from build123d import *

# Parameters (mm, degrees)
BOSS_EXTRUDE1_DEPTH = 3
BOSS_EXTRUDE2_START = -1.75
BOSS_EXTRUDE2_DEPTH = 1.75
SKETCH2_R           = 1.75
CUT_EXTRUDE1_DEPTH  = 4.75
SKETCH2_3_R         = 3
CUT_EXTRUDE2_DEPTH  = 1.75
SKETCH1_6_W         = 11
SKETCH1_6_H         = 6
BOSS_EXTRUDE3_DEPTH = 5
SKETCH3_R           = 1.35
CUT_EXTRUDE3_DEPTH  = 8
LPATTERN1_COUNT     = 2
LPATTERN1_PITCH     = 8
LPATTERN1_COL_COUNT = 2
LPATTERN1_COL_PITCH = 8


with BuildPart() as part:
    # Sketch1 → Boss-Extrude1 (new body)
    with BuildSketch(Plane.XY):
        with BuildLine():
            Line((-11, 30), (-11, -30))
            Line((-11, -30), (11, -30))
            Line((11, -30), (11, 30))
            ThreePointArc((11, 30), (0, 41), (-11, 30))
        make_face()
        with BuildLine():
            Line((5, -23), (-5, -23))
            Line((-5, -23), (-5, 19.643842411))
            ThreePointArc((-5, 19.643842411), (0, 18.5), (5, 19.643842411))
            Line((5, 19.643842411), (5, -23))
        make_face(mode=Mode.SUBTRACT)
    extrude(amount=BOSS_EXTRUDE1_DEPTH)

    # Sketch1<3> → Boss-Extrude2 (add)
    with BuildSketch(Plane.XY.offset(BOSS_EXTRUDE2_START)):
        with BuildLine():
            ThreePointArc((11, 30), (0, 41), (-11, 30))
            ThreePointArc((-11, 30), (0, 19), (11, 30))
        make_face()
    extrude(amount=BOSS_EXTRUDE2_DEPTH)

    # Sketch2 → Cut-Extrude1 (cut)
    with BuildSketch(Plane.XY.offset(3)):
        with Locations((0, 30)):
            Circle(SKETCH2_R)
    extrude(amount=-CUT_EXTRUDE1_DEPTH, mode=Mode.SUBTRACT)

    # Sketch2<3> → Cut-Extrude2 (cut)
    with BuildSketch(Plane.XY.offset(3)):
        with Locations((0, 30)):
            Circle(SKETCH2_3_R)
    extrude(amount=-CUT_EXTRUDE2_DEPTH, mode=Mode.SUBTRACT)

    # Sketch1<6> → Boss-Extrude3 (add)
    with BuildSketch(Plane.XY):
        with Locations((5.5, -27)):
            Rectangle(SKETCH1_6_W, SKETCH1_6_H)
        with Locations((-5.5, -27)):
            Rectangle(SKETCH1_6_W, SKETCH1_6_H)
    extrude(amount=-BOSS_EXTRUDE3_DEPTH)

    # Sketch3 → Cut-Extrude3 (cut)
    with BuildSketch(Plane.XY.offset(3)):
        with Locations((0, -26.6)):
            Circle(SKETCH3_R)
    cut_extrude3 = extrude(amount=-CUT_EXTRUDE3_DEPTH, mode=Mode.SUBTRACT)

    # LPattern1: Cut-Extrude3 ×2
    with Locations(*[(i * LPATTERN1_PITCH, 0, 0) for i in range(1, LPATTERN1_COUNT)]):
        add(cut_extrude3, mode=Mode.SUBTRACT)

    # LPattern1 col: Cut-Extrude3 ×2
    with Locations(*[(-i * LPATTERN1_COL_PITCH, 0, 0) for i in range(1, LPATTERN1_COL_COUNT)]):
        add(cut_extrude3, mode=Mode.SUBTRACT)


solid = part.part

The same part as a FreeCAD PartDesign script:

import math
import FreeCAD as App
import Part
import Sketcher
from FreeCAD import Vector

doc = App.newDocument("Part")
body = doc.addObject("PartDesign::Body", "Body")

sketch1 = doc.addObject("Sketcher::SketchObject", "Sketch")
body.addObject(sketch1)
sketch1.AttachmentSupport = (doc.XY_Plane, [""])
sketch1.MapMode = "FlatFace"
sketch1.addGeometry([
    Part.LineSegment(Vector(-11, 30, 0), Vector(-11, -30, 0)),
    Part.LineSegment(Vector(-11, -30, 0), Vector(11, -30, 0)),
    Part.LineSegment(Vector(11, -30, 0), Vector(11, 30, 0)),
    Part.ArcOfCircle(Part.Circle(Vector(0, 30, 0), Vector(0, 0, 1), 11), math.radians(0), math.radians(180)),
    Part.LineSegment(Vector(5, 20, 0), Vector(5, -23, 0)),
    Part.LineSegment(Vector(5, -23, 0), Vector(-5, -23, 0)),
    Part.LineSegment(Vector(-5, -23, 0), Vector(-5, 20, 0)),
    Part.ArcOfCircle(Part.Circle(Vector(0, 30, 0), Vector(0, 0, 1), 12), math.radians(-116), math.radians(-64)),
], False)
sketch1.addConstraint([
    Sketcher.Constraint("Coincident", 0, 2, 1, 1),
    Sketcher.Constraint("Coincident", 1, 2, 2, 1),
    Sketcher.Constraint("Tangent", 2, 2, 3, 1),
    Sketcher.Constraint("Tangent", 3, 2, 0, 1),
    Sketcher.Constraint("Coincident", 4, 2, 5, 1),
    Sketcher.Constraint("Coincident", 5, 2, 6, 1),
    Sketcher.Constraint("Coincident", 6, 2, 7, 1),
    Sketcher.Constraint("Coincident", 7, 2, 4, 1),
    Sketcher.Constraint("Vertical", 0),
    Sketcher.Constraint("Horizontal", 1),
    Sketcher.Constraint("Vertical", 2),
    Sketcher.Constraint("Vertical", 4),
    Sketcher.Constraint("Horizontal", 5),
    Sketcher.Constraint("Vertical", 6),
    Sketcher.Constraint("Coincident", 7, 3, 3, 3),
    Sketcher.Constraint("Symmetric", 0, 2, 2, 2, -1, 1),
    Sketcher.Constraint("Horizontal", 6, 2, 7, 2),
    Sketcher.Constraint("Radius", 3, 11.0),
    Sketcher.Constraint("Radius", 7, 11.5),
    Sketcher.Constraint("DistanceX", 5, 2, 5, 1, 10.0),
    Sketcher.Constraint("DistanceY", 0, 2, 0, 1, 60.0),
    Sketcher.Constraint("DistanceY", 4, 2, -1, 1, 23.0),
])
pad1 = doc.addObject("PartDesign::Pad", "Pad")
body.addObject(pad1)
pad1.Profile = sketch1
pad1.Length = 3

sketch2 = doc.addObject("Sketcher::SketchObject", "Sketch001")
body.addObject(sketch2)
sketch2.AttachmentSupport = (doc.XY_Plane, [""])
sketch2.MapMode = "FlatFace"
sketch2.AttachmentOffset = App.Placement(Vector(0, 0, -1.75), App.Rotation())
sketch2.addGeometry(Part.Circle(Vector(0, 30, 0), Vector(0, 0, 1), 11), False)
sketch2.addConstraint([
    Sketcher.Constraint("PointOnObject", 0, 3, -2),
    Sketcher.Constraint("Diameter", 0, 22.0),
    Sketcher.Constraint("DistanceY", -1, 1, 0, 3, 30.0),
])
pad2 = doc.addObject("PartDesign::Pad", "Pad001")
body.addObject(pad2)
pad2.Profile = sketch2
pad2.Length = 1.75

sketch3 = doc.addObject("Sketcher::SketchObject", "Sketch002")
body.addObject(sketch3)
sketch3.AttachmentSupport = (doc.XY_Plane, [""])
sketch3.MapMode = "FlatFace"
sketch3.AttachmentOffset = App.Placement(Vector(0, 0, 3), App.Rotation())
sketch3.addGeometry(Part.Circle(Vector(0, 30, 0), Vector(0, 0, 1), 1.8), False)
sketch3.addConstraint([
    Sketcher.Constraint("PointOnObject", 0, 3, -2),
    Sketcher.Constraint("Diameter", 0, 3.5),
    Sketcher.Constraint("DistanceY", -1, 1, 0, 3, 30.0),
])
pocket1 = doc.addObject("PartDesign::Pocket", "Pocket")
body.addObject(pocket1)
pocket1.Profile = sketch3
pocket1.Length = 4.75

sketch4 = doc.addObject("Sketcher::SketchObject", "Sketch003")
body.addObject(sketch4)
sketch4.AttachmentSupport = (doc.XY_Plane, [""])
sketch4.MapMode = "FlatFace"
sketch4.AttachmentOffset = App.Placement(Vector(0, 0, 3), App.Rotation())
sketch4.addGeometry(Part.Circle(Vector(0, 30, 0), Vector(0, 0, 1), 3), False)
sketch4.addConstraint([
    Sketcher.Constraint("PointOnObject", 0, 3, -2),
    Sketcher.Constraint("Diameter", 0, 6.0),
    Sketcher.Constraint("DistanceY", -1, 1, 0, 3, 30.0),
])
pocket2 = doc.addObject("PartDesign::Pocket", "Pocket001")
body.addObject(pocket2)
pocket2.Profile = sketch4
pocket2.Length = 1.75

sketch5 = doc.addObject("Sketcher::SketchObject", "Sketch004")
body.addObject(sketch5)
sketch5.AttachmentSupport = (doc.XY_Plane, [""])
sketch5.MapMode = "FlatFace"
sketch5.addGeometry([
    Part.LineSegment(Vector(11, -30, 0), Vector(11, -24, 0)),
    Part.LineSegment(Vector(11, -24, 0), Vector(-11, -24, 0)),
    Part.LineSegment(Vector(-11, -24, 0), Vector(-11, -30, 0)),
    Part.LineSegment(Vector(-11, -30, 0), Vector(11, -30, 0)),
], False)
sketch5.addConstraint([
    Sketcher.Constraint("Coincident", 0, 2, 1, 1),
    Sketcher.Constraint("Coincident", 1, 2, 2, 1),
    Sketcher.Constraint("Coincident", 2, 2, 3, 1),
    Sketcher.Constraint("Coincident", 3, 2, 0, 1),
    Sketcher.Constraint("Vertical", 0),
    Sketcher.Constraint("Horizontal", 1),
    Sketcher.Constraint("Vertical", 2),
    Sketcher.Constraint("Horizontal", 3),
    Sketcher.Constraint("DistanceX", 1, 2, 1, 1, 22.0),
    Sketcher.Constraint("DistanceY", 0, 1, 0, 2, 6.0),
    Sketcher.Constraint("DistanceX", -1, 1, 0, 2, 11.0),
    Sketcher.Constraint("DistanceY", 0, 2, -1, 1, 24.0),
])
pad3 = doc.addObject("PartDesign::Pad", "Pad002")
body.addObject(pad3)
pad3.Profile = sketch5
pad3.Length = 5
pad3.Reversed = True

sketch6 = doc.addObject("Sketcher::SketchObject", "Sketch005")
body.addObject(sketch6)
sketch6.AttachmentSupport = (doc.XY_Plane, [""])
sketch6.MapMode = "FlatFace"
sketch6.AttachmentOffset = App.Placement(Vector(0, 0, 3), App.Rotation())
sketch6.addGeometry(Part.Circle(Vector(0, -26.6, 0), Vector(0, 0, 1), 1.4), False)
sketch6.addConstraint([
    Sketcher.Constraint("PointOnObject", 0, 3, -2),
    Sketcher.Constraint("Diameter", 0, 2.7),
    Sketcher.Constraint("DistanceY", 0, 3, -1, 1, 26.6),
])
pocket3 = doc.addObject("PartDesign::Pocket", "Pocket002")
body.addObject(pocket3)
pocket3.Profile = sketch6
pocket3.Length = 8
doc.recompute()

linearpattern = doc.addObject("PartDesign::LinearPattern", "LinearPattern")
body.addObject(linearpattern)
linearpattern.Originals = [pocket3]
linearpattern.Direction = (doc.X_Axis, [""])
linearpattern.Mode = "offset"
linearpattern.Offset = 8
linearpattern.Occurrences = 2
body.Tip = linearpattern
doc.recompute()

linearpattern2 = doc.addObject("PartDesign::LinearPattern", "LinearPattern001")
body.addObject(linearpattern2)
linearpattern2.Originals = [pocket3]
linearpattern2.Direction = (doc.X_Axis, [""])
linearpattern2.Mode = "offset"
linearpattern2.Offset = 8
linearpattern2.Occurrences = 2
linearpattern2.Reversed = True
body.Tip = linearpattern2

doc.recompute()
